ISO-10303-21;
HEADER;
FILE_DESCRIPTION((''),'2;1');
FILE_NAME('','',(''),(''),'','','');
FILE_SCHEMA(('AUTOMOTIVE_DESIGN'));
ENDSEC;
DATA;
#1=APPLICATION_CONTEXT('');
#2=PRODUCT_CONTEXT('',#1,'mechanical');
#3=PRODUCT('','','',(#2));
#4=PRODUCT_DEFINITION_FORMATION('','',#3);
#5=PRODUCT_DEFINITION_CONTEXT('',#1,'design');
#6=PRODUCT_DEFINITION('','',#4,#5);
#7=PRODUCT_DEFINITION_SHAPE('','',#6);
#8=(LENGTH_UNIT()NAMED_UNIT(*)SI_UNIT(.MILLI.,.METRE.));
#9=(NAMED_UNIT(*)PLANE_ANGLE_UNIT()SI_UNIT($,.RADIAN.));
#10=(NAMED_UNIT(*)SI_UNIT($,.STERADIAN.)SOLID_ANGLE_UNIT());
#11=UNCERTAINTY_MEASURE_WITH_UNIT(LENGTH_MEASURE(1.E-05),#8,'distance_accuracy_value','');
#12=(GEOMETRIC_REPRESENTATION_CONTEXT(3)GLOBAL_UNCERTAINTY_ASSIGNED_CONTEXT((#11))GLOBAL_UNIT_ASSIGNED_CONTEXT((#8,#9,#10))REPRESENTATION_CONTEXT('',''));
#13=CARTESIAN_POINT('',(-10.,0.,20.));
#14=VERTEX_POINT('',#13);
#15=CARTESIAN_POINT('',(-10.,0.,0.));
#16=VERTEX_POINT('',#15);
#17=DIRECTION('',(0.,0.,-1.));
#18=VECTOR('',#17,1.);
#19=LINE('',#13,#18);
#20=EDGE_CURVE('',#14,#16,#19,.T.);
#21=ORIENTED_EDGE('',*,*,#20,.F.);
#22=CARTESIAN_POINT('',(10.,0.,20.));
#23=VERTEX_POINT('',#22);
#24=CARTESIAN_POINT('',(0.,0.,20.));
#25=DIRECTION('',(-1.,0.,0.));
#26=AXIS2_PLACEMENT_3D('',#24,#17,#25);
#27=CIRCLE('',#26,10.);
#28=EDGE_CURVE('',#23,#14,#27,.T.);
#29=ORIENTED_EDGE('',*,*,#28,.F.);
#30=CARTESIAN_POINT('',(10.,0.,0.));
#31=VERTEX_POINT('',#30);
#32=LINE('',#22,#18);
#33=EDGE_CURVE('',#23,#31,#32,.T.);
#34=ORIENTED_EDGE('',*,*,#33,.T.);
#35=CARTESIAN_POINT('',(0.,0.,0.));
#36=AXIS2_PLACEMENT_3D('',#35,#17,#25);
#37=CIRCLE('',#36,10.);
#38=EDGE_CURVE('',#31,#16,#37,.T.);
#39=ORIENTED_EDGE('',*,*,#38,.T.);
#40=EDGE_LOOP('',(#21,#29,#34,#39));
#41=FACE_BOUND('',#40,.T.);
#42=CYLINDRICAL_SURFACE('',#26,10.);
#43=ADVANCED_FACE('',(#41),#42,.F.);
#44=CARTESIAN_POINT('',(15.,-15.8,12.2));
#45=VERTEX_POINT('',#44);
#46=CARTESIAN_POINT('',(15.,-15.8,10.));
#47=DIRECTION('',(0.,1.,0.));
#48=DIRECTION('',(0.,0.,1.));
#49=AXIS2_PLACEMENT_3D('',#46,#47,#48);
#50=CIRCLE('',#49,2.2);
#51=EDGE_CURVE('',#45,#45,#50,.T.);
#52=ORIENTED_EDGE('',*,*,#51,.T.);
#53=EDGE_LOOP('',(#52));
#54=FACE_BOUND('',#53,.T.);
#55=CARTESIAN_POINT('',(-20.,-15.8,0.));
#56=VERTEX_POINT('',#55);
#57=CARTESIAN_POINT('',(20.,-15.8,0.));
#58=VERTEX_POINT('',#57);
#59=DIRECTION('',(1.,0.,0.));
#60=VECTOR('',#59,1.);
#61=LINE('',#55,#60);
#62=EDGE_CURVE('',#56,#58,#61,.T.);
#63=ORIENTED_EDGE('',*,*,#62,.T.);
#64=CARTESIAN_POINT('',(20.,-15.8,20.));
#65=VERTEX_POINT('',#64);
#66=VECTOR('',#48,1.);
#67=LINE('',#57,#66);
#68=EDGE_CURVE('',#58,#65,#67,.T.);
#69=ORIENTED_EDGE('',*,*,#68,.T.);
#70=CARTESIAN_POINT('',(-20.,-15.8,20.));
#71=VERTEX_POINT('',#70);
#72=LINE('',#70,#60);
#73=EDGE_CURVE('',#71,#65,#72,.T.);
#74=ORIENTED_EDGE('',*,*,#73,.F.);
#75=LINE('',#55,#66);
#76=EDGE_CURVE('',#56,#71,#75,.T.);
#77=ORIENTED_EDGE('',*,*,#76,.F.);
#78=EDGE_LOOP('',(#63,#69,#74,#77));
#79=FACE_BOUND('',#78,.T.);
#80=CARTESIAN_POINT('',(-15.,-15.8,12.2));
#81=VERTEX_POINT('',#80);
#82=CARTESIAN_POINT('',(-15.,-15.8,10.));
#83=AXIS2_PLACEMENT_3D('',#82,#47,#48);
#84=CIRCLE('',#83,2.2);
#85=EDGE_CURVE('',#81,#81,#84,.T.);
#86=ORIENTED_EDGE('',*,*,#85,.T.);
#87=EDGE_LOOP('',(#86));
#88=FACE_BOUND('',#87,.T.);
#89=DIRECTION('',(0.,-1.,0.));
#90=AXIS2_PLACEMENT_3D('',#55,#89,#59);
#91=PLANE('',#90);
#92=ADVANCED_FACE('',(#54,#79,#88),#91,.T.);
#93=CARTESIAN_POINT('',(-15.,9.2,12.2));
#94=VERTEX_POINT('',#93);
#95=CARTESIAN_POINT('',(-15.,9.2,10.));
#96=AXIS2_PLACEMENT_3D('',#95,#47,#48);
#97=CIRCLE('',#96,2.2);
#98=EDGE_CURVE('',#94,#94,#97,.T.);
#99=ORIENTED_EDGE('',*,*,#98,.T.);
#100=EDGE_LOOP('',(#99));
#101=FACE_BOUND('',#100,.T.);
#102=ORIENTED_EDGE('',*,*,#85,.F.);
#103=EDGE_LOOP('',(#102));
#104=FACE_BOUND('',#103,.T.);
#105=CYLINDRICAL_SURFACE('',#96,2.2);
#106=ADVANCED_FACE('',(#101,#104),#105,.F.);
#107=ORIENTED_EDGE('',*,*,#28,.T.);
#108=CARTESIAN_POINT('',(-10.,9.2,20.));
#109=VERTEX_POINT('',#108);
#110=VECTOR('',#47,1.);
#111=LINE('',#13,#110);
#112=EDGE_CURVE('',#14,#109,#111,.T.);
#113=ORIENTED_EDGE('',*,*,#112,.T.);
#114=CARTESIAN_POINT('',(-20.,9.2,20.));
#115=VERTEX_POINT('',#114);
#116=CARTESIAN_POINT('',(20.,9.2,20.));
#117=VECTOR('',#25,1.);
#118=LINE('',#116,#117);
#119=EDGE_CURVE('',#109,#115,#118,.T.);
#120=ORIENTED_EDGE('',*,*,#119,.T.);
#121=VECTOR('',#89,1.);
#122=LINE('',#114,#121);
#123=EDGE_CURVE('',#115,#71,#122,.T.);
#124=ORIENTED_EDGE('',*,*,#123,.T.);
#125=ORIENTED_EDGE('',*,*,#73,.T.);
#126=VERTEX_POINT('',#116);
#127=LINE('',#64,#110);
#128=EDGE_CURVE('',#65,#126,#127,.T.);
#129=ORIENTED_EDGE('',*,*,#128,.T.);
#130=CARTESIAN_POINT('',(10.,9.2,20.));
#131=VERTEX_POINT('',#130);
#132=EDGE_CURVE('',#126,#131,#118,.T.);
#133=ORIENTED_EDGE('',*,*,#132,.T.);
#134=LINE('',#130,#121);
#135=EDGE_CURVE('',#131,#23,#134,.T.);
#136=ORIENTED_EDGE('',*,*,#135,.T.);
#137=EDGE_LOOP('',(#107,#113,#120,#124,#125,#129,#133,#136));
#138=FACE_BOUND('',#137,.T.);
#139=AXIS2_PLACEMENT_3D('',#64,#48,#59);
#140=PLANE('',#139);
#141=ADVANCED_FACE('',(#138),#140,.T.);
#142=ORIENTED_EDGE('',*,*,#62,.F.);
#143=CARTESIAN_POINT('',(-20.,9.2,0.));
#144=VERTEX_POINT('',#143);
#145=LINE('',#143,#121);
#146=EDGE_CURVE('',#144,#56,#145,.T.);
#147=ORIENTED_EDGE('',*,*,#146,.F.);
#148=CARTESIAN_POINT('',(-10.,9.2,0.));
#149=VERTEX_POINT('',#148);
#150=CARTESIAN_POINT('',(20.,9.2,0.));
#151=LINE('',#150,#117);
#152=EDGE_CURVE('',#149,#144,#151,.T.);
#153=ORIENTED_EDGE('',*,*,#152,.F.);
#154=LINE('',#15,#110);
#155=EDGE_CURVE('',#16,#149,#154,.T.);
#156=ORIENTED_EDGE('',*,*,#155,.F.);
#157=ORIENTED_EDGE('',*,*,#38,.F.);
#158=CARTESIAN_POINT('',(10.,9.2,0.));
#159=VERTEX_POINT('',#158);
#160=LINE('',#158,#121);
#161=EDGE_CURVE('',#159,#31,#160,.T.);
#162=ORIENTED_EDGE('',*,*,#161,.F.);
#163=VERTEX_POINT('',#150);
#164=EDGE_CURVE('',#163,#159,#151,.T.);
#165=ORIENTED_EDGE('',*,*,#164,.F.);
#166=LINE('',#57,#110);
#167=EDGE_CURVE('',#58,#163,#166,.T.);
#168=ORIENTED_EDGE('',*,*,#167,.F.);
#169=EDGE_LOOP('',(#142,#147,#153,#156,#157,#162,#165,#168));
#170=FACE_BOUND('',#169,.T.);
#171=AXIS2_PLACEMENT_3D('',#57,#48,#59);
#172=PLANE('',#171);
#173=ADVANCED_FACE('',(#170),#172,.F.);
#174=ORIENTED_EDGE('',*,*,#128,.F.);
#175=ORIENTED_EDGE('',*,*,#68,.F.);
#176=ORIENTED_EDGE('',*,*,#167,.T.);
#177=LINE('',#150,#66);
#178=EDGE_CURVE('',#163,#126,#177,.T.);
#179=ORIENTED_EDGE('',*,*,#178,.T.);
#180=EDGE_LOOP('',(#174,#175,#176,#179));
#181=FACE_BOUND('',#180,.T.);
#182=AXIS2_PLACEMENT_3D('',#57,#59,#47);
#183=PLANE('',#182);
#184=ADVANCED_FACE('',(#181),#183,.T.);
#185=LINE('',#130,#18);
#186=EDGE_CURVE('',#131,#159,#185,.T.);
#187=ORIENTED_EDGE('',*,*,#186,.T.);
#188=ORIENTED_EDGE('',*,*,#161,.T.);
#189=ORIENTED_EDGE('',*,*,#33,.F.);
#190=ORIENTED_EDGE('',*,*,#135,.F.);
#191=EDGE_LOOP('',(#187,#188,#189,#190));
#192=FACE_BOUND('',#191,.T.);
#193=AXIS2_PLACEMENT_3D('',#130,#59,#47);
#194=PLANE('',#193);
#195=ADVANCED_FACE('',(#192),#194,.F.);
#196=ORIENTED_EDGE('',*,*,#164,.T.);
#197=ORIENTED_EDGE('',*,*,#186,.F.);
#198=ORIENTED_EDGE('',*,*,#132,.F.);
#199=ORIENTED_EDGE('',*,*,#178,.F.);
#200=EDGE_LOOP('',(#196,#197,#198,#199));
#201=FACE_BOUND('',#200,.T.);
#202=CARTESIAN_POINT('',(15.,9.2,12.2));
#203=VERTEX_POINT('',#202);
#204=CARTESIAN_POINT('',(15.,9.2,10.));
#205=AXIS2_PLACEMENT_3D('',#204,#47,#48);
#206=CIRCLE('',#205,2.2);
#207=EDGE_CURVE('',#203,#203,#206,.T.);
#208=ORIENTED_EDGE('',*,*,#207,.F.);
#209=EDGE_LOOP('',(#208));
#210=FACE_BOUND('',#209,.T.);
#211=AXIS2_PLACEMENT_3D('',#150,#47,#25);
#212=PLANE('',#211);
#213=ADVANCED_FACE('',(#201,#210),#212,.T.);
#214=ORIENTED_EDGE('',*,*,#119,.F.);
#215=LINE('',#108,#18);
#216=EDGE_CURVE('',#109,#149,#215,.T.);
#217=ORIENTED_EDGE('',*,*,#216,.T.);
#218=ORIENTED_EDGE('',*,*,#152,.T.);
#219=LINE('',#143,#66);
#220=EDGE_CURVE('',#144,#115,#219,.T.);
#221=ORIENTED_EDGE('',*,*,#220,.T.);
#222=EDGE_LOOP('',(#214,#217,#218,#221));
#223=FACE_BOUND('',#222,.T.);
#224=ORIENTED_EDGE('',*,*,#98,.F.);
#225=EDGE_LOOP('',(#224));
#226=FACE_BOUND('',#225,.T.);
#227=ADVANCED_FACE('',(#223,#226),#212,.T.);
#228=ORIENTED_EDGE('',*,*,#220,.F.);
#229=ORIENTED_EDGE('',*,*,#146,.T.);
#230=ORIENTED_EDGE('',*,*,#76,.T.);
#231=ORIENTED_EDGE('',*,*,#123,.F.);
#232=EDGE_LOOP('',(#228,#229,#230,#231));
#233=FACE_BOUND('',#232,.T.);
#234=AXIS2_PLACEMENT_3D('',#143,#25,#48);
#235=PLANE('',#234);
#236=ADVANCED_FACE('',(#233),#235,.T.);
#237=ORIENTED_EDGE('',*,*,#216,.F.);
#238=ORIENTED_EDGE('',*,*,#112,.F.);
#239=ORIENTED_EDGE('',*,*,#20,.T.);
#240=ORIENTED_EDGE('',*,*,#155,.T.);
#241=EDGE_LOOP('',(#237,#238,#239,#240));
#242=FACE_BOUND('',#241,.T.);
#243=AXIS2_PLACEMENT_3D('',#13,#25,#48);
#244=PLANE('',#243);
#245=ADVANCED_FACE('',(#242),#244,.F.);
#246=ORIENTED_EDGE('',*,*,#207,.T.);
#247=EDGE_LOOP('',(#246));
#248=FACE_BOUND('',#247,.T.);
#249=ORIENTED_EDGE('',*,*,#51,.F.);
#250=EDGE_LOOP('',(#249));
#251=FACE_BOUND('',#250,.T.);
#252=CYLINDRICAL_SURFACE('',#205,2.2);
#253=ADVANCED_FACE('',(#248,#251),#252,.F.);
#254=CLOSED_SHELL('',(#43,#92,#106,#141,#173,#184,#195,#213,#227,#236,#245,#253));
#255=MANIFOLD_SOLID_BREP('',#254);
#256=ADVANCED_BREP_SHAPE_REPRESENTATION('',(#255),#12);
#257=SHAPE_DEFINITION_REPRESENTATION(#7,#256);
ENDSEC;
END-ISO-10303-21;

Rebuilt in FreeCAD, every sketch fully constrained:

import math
import FreeCAD as App
import Part
import Sketcher
from FreeCAD import Vector
Q = App.Units.Quantity


def add_polygon(sketch, points):
    """Adds a closed chain of lines whose ends are joined by coincident constraints."""
    first, n = sketch.GeometryCount, len(points)
    for a, b in zip(points, points[1:] + points[:1]):
        sketch.addGeometry(Part.LineSegment(App.Vector(*a, 0), App.Vector(*b, 0)), False)
    for i in range(n):
        sketch.addConstraint(Sketcher.Constraint("Coincident", first + i, 2, first + (i + 1) % n, 1))

doc = App.newDocument("Part")
body = doc.addObject("PartDesign::Body", "Body")

sketch1 = body.newObject("Sketcher::SketchObject", "Sketch")
sketch1.AttachmentSupport = (doc.getObject("XY_Plane"), [""])
sketch1.MapMode = "FlatFace"
sketch1.AttachmentOffset = App.Placement(Vector(0, 0, 20), App.Rotation())
add_polygon(sketch1, [(-20, 9), (-20, -16), (20, -16), (20, 9)])
sketch1.addConstraint(Sketcher.Constraint("Vertical", 0))
sketch1.addConstraint(Sketcher.Constraint("Horizontal", 1))
sketch1.addConstraint(Sketcher.Constraint("Vertical", 2))
sketch1.addConstraint(Sketcher.Constraint("Horizontal", 3))
sketch1.addConstraint(Sketcher.Constraint("DistanceX", 1, 1, 1, 2, Q("40 mm")))
sketch1.addConstraint(Sketcher.Constraint("DistanceY", 0, 2, 0, 1, Q("25 mm")))
sketch1.addConstraint(Sketcher.Constraint("DistanceX", 0, 2, -1, 1, Q("20 mm")))
sketch1.addConstraint(Sketcher.Constraint("DistanceY", 0, 2, -1, 1, Q("15.8 mm")))
pad1 = body.newObject("PartDesign::Pad", "Pad")
pad1.Profile = sketch1
pad1.Length = 20
pad1.Reversed = True

sketch2 = body.newObject("Sketcher::SketchObject", "Sketch001")
sketch2.AttachmentSupport = (doc.getObject("XY_Plane"), [""])
sketch2.MapMode = "FlatFace"
sketch2.addGeometry(Part.LineSegment(Vector(-10, 9, 0), Vector(10, 9, 0)), False)
sketch2.addGeometry(Part.LineSegment(Vector(10, 9, 0), Vector(10, 0, 0)), False)
sketch2.addGeometry(Part.ArcOfCircle(Part.Circle(Vector(0, 0, 0), Vector(0, 0, 1), 10), math.radians(180), math.radians(360)), False)
sketch2.addGeometry(Part.LineSegment(Vector(-10, 0, 0), Vector(-10, 9, 0)), False)
sketch2.addConstraint(Sketcher.Constraint("Coincident", 0, 2, 1, 1))
sketch2.addConstraint(Sketcher.Constraint("Tangent", 1, 2, 2, 2))
sketch2.addConstraint(Sketcher.Constraint("Tangent", 2, 1, 3, 1))
sketch2.addConstraint(Sketcher.Constraint("Coincident", 3, 2, 0, 1))
sketch2.addConstraint(Sketcher.Constraint("Horizontal", 0))
sketch2.addConstraint(Sketcher.Constraint("Vertical", 1))
sketch2.addConstraint(Sketcher.Constraint("Vertical", 3))
sketch2.addConstraint(Sketcher.Constraint("Coincident", 2, 3, -1, 1))
sketch2.addConstraint(Sketcher.Constraint("Radius", 2, Q("10 mm")))
sketch2.addConstraint(Sketcher.Constraint("DistanceY", 1, 2, 1, 1, Q("9.2 mm")))
pocket1 = body.newObject("PartDesign::Pocket", "Pocket")
pocket1.Profile = sketch2
pocket1.Type = "ThroughAll"
pocket1.Reversed = True

sketch3 = body.newObject("Sketcher::SketchObject", "Sketch002")
sketch3.AttachmentSupport = (doc.getObject("XZ_Plane"), [""])
sketch3.MapMode = "FlatFace"
sketch3.AttachmentOffset = App.Placement(Vector(0, 0, -9.2), App.Rotation())
sketch3.addGeometry(Part.Circle(Vector(-15, 10, 0), Vector(0, 0, 1), 2.2), False)
sketch3.addConstraint(Sketcher.Constraint("Diameter", 0, Q("4.4 mm")))
sketch3.addConstraint(Sketcher.Constraint("DistanceX", 0, 3, -1, 1, Q("15 mm")))
sketch3.addConstraint(Sketcher.Constraint("DistanceY", -1, 1, 0, 3, Q("10 mm")))
doc.recompute()
hole = body.newObject("PartDesign::Hole", "Hole")
hole.Profile = sketch3
hole.ThreadType = "None"
hole.Diameter = 4.4
hole.DepthType = "ThroughAll"
hole.Reversed = True

sketch4 = body.newObject("Sketcher::SketchObject", "Sketch003")
sketch4.AttachmentSupport = (doc.getObject("XZ_Plane"), [""])
sketch4.MapMode = "FlatFace"
sketch4.AttachmentOffset = App.Placement(Vector(0, 0, -9.2), App.Rotation())
sketch4.addGeometry(Part.Circle(Vector(15, 10, 0), Vector(0, 0, 1), 2.2), False)
sketch4.addConstraint(Sketcher.Constraint("Diameter", 0, Q("4.4 mm")))
sketch4.addConstraint(Sketcher.Constraint("DistanceX", -1, 1, 0, 3, Q("15 mm")))
sketch4.addConstraint(Sketcher.Constraint("DistanceY", -1, 1, 0, 3, Q("10 mm")))
doc.recompute()
hole2 = body.newObject("PartDesign::Hole", "Hole001")
hole2.Profile = sketch4
hole2.ThreadType = "None"
hole2.Diameter = 4.4
hole2.DepthType = "ThroughAll"
hole2.Reversed = True

doc.recompute()
